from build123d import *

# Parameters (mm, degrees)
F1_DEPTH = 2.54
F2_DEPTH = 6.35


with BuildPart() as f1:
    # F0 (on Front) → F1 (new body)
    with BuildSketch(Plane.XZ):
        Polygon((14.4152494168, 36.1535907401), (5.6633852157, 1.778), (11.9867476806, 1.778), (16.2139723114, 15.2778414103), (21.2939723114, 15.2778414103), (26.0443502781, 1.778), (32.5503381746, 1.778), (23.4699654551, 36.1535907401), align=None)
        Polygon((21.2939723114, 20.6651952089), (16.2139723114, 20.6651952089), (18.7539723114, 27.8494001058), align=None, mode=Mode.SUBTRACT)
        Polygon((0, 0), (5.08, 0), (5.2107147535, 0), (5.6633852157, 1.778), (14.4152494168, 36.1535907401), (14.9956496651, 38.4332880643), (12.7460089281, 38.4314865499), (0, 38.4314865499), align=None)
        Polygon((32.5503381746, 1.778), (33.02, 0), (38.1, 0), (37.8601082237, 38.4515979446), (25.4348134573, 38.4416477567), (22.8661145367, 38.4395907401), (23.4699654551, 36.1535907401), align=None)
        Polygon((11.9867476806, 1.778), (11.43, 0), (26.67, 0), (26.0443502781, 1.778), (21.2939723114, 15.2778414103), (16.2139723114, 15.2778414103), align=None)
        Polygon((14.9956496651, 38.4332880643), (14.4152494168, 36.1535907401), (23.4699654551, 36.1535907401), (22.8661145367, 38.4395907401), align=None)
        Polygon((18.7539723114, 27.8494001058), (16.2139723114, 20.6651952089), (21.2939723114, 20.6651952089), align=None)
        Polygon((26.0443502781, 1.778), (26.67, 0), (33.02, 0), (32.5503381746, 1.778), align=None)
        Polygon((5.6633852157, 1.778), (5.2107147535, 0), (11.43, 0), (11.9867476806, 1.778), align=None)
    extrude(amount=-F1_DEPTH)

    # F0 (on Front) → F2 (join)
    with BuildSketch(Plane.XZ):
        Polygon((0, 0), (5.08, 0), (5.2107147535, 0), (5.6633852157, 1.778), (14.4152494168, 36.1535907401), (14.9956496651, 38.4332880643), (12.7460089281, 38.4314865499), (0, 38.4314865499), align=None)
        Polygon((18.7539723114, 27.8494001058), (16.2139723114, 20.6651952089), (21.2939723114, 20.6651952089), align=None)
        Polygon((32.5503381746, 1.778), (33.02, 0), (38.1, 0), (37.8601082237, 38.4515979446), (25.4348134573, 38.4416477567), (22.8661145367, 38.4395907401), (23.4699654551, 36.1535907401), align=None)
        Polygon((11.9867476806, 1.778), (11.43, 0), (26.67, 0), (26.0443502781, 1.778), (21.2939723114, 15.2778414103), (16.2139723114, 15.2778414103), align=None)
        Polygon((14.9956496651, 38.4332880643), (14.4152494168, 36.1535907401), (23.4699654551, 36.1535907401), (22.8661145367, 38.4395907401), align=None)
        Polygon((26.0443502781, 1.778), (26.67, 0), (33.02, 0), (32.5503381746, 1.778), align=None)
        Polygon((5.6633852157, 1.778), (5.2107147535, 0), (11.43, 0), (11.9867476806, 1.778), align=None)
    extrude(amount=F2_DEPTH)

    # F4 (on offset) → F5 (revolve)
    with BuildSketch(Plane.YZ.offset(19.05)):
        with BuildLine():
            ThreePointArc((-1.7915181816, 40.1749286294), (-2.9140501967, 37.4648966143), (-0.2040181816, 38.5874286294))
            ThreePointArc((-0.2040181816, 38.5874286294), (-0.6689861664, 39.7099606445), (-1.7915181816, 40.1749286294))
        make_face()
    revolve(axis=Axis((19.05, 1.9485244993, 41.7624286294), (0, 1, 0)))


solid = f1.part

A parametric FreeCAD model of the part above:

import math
import FreeCAD as App
import Part
import Sketcher

V = App.Vector
Q = App.Units.Quantity

doc = App.newDocument("Part")
body = doc.addObject("PartDesign::Body", "Body")

sketch1 = body.newObject("Sketcher::SketchObject", "Sketch")
sketch1.AttachmentSupport = (doc.getObject("XZ_Plane"), [""])
sketch1.MapMode = "FlatFace"
sketch1.addGeometry(Part.LineSegment(V(15, 38.4, 0), V(12.7, 38.4, 0)), False)
sketch1.addGeometry(Part.LineSegment(V(12.7, 38.4, 0), V(0, 38.4, 0)), False)
sketch1.addGeometry(Part.LineSegment(V(0, 38.4, 0), V(0, 0, 0)), False)
sketch1.addGeometry(Part.LineSegment(V(0, 0, 0), V(38.1, 0, 0)), False)
sketch1.addGeometry(Part.LineSegment(V(38.1, 0, 0), V(37.9, 38.5, 0)), False)
sketch1.addGeometry(Part.LineSegment(V(37.9, 38.5, 0), V(25.4, 38.4, 0)), False)
sketch1.addGeometry(Part.LineSegment(V(25.4, 38.4, 0), V(22.9, 38.4, 0)), False)
sketch1.addGeometry(Part.LineSegment(V(22.9, 38.4, 0), V(15, 38.4, 0)), False)
sketch1.addConstraint(Sketcher.Constraint("Coincident", 0, 2, 1, 1))
sketch1.addConstraint(Sketcher.Constraint("Coincident", 1, 2, 2, 1))
sketch1.addConstraint(Sketcher.Constraint("Coincident", 2, 2, 3, 1))
sketch1.addConstraint(Sketcher.Constraint("Coincident", 3, 2, 4, 1))
sketch1.addConstraint(Sketcher.Constraint("Coincident", 4, 2, 5, 1))
sketch1.addConstraint(Sketcher.Constraint("Coincident", 5, 2, 6, 1))
sketch1.addConstraint(Sketcher.Constraint("Coincident", 6, 2, 7, 1))
sketch1.addConstraint(Sketcher.Constraint("Coincident", 7, 2, 0, 1))
sketch1.addConstraint(Sketcher.Constraint("Horizontal", 1))
sketch1.addConstraint(Sketcher.Constraint("Vertical", 2))
sketch1.addConstraint(Sketcher.Constraint("Horizontal", 3))
sketch1.addConstraint(Sketcher.Constraint("Coincident", 2, 2, -1, 1))
sketch1.addConstraint(Sketcher.Constraint("Parallel", 0, 5))
sketch1.addConstraint(Sketcher.Constraint("Parallel", 5, 6))
sketch1.addConstraint(Sketcher.Constraint("Parallel", 6, 7))
sketch1.addConstraint(Sketcher.Constraint("DistanceX", 3, 1, 3, 2, Q("1.5 in")))
sketch1.addConstraint(Sketcher.Constraint("DistanceY", 0, 2, 5, 2, Q("0.0004 in")))
sketch1.addConstraint(Sketcher.Constraint("Distance", 5, Q("12.425299 mm")))
sketch1.addConstraint(Sketcher.Constraint("Distance", 6, Q("2.5687 mm")))
sketch1.addConstraint(Sketcher.Constraint("DistanceX", 1, 2, 1, 1, Q("12.746009 mm")))
sketch1.addConstraint(Sketcher.Constraint("DistanceX", 0, 2, 4, 2, Q("25.114099 mm")))
sketch1.addConstraint(Sketcher.Constraint("Distance", 0, Q("2.249641 mm")))
sketch1.addConstraint(Sketcher.Constraint("DistanceY", 2, 2, 2, 1, Q("38.431487 mm")))
pad1 = body.newObject("PartDesign::Pad", "Pad")
pad1.Profile = sketch1
pad1.Length = Q("0.1 in")
pad1.Reversed = True

sketch2 = body.newObject("Sketcher::SketchObject", "Sketch001")
sketch2.AttachmentSupport = (doc.getObject("XZ_Plane"), [""])
sketch2.MapMode = "FlatFace"
sketch2.addGeometry(Part.LineSegment(V(0, 0, 0), V(38.1, 0, 0)), False)
sketch2.addGeometry(Part.LineSegment(V(38.1, 0, 0), V(37.9, 38.5, 0)), False)
sketch2.addGeometry(Part.LineSegment(V(37.9, 38.5, 0), V(25.4, 38.4, 0)), False)
sketch2.addGeometry(Part.LineSegment(V(25.4, 38.4, 0), V(22.9, 38.4, 0)), False)
sketch2.addGeometry(Part.LineSegment(V(22.9, 38.4, 0), V(15, 38.4, 0)), False)
sketch2.addGeometry(Part.LineSegment(V(15, 38.4, 0), V(12.7, 38.4, 0)), False)
sketch2.addGeometry(Part.LineSegment(V(12.7, 38.4, 0), V(0, 38.4, 0)), False)
sketch2.addGeometry(Part.LineSegment(V(0, 38.4, 0), V(0, 0, 0)), False)
sketch2.addGeometry(Part.LineSegment(V(5.7, 1.8, 0), V(14.4, 36.2, 0)), False)
sketch2.addGeometry(Part.LineSegment(V(14.4, 36.2, 0), V(23.5, 36.2, 0)), False)
sketch2.addGeometry(Part.LineSegment(V(23.5, 36.2, 0), V(32.6, 1.8, 0)), False)
sketch2.addGeometry(Part.LineSegment(V(32.6, 1.8, 0), V(26, 1.8, 0)), False)
sketch2.addGeometry(Part.LineSegment(V(26, 1.8, 0), V(21.3, 15.3, 0)), False)
sketch2.addGeometry(Part.LineSegment(V(21.3, 15.3, 0), V(16.2, 15.3, 0)), False)
sketch2.addGeometry(Part.LineSegment(V(16.2, 15.3, 0), V(12, 1.8, 0)), False)
sketch2.addGeometry(Part.LineSegment(V(12, 1.8, 0), V(5.7, 1.8, 0)), False)
sketch2.addGeometry(Part.LineSegment(V(18.8, 27.8, 0), V(16.2, 20.7, 0)), False)
sketch2.addGeometry(Part.LineSegment(V(16.2, 20.7, 0), V(21.3, 20.7, 0)), False)
sketch2.addGeometry(Part.LineSegment(V(21.3, 20.7, 0), V(18.8, 27.8, 0)), False)
sketch2.addConstraint(Sketcher.Constraint("Coincident", 0, 2, 1, 1))
sketch2.addConstraint(Sketcher.Constraint("Coincident", 1, 2, 2, 1))
sketch2.addConstraint(Sketcher.Constraint("Coincident", 2, 2, 3, 1))
sketch2.addConstraint(Sketcher.Constraint("Coincident", 3, 2, 4, 1))
sketch2.addConstraint(Sketcher.Constraint("Coincident", 4, 2, 5, 1))
sketch2.addConstraint(Sketcher.Constraint("Coincident", 5, 2, 6, 1))
sketch2.addConstraint(Sketcher.Constraint("Coincident", 6, 2, 7, 1))
sketch2.addConstraint(Sketcher.Constraint("Coincident", 7, 2, 0, 1))
sketch2.addConstraint(Sketcher.Constraint("Coincident", 8, 2, 9, 1))
sketch2.addConstraint(Sketcher.Constraint("Coincident", 9, 2, 10, 1))
sketch2.addConstraint(Sketcher.Constraint("Coincident", 10, 2, 11, 1))
sketch2.addConstraint(Sketcher.Constraint("Coincident", 11, 2, 12, 1))
sketch2.addConstraint(Sketcher.Constraint("Coincident", 12, 2, 13, 1))
sketch2.addConstraint(Sketcher.Constraint("Coincident", 13, 2, 14, 1))
sketch2.addConstraint(Sketcher.Constraint("Coincident", 14, 2, 15, 1))
sketch2.addConstraint(Sketcher.Constraint("Coincident", 15, 2, 8, 1))
sketch2.addConstraint(Sketcher.Constraint("Coincident", 16, 2, 17, 1))
sketch2.addConstraint(Sketcher.Constraint("Coincident", 17, 2, 18, 1))
sketch2.addConstraint(Sketcher.Constraint("Coincident", 18, 2, 16, 1))
sketch2.addConstraint(Sketcher.Constraint("Horizontal", 0))
sketch2.addConstraint(Sketcher.Constraint("Horizontal", 6))
sketch2.addConstraint(Sketcher.Constraint("Vertical", 7))
sketch2.addConstraint(Sketcher.Constraint("Horizontal", 9))
sketch2.addConstraint(Sketcher.Constraint("Horizontal", 11))
sketch2.addConstraint(Sketcher.Constraint("Horizontal", 13))
sketch2.addConstraint(Sketcher.Constraint("Horizontal", 15))
sketch2.addConstraint(Sketcher.Constraint("Horizontal", 17))
sketch2.addConstraint(Sketcher.Constraint("Coincident", 7, 2, -1, 1))
sketch2.addConstraint(Sketcher.Constraint("Parallel", 2, 3))
sketch2.addConstraint(Sketcher.Constraint("Parallel", 3, 4))
sketch2.addConstraint(Sketcher.Constraint("Parallel", 4, 5))
sketch2.addConstraint(Sketcher.Constraint("Horizontal", 11, 2, 14, 2))
sketch2.addConstraint(Sketcher.Constraint("Vertical", 13, 2, 16, 2))
sketch2.addConstraint(Sketcher.Constraint("Vertical", 12, 2, 17, 2))
sketch2.addConstraint(Sketcher.Constraint("Equal", 16, 18))
sketch2.addConstraint(Sketcher.Constraint("DistanceX", 0, 1, 0, 2, Q("1.5 in")))
sketch2.addConstraint(Sketcher.Constraint("DistanceX", 13, 2, 13, 1, Q("0.2 in")))
sketch2.addConstraint(Sketcher.Constraint("Distance", 16, Q("0.3 in")))
sketch2.addConstraint(Sketcher.Constraint("DistanceY", -1, 1, 10, 2, Q("0.07 in")))
sketch2.addConstraint(Sketcher.Constraint("DistanceY", 8, 2, 3, 2, Q("0.09 in")))
sketch2.addConstraint(Sketcher.Constraint("DistanceY", 5, 2, 2, 2, Q("0.0004 in")))
sketch2.addConstraint(Sketcher.Constraint("DistanceX", 15, 2, 11, 2, Q("0.8024002 in")))
sketch2.addConstraint(Sketcher.Constraint("Distance", 2, Q("12.425299 mm")))
sketch2.addConstraint(Sketcher.Constraint("Distance", 3, Q("2.5687 mm")))
sketch2.addConstraint(Sketcher.Constraint("DistanceX", 6, 2, 6, 1, Q("12.746009 mm")))
sketch2.addConstraint(Sketcher.Constraint("DistanceY", -1, 1, 18, 2, Q("27.8494 mm")))
sketch2.addConstraint(Sketcher.Constraint("DistanceX", 5, 2, 1, 2, Q("25.114099 mm")))
sketch2.addConstraint(Sketcher.Constraint("DistanceX", 8, 2, 4, 2, Q("0.5804 mm")))
sketch2.addConstraint(Sketcher.Constraint("DistanceX", 8, 2, 11, 2, Q("11.629101 mm")))
sketch2.addConstraint(Sketcher.Constraint("Distance", 5, Q("2.249641 mm")))
sketch2.addConstraint(Sketcher.Constraint("Distance", 8, Q("35.472191 mm")))
sketch2.addConstraint(Sketcher.Constraint("DistanceX", 9, 1, 9, 2, Q("9.054716 mm")))
sketch2.addConstraint(Sketcher.Constraint("DistanceX", 11, 2, 11, 1, Q("6.505988 mm")))
sketch2.addConstraint(Sketcher.Constraint("DistanceX", 15, 2, 15, 1, Q("6.323362 mm")))
sketch2.addConstraint(Sketcher.Constraint("DistanceY", -1, 1, 12, 2, Q("15.277841 mm")))
sketch2.addConstraint(Sketcher.Constraint("Distance", 12, Q("14.311248 mm")))
pad2 = body.newObject("PartDesign::Pad", "Pad001")
pad2.Profile = sketch2
pad2.Length = Q("0.25 in")

sketch3 = body.newObject("Sketcher::SketchObject", "Sketch002")
sketch3.AttachmentSupport = (doc.getObject("YZ_Plane"), [""])
sketch3.MapMode = "FlatFace"
sketch3.AttachmentOffset = App.Placement(V(0, 0, 0.75 * 25.4), App.Rotation())
sketch3.addGeometry(Part.ArcOfCircle(Part.Circle(V(-1.8, 38.6, 0), V(0, 0, 1), 1.6), math.radians(90), math.radians(360)), False)
sketch3.addGeometry(Part.ArcOfCircle(Part.Circle(V(-1.8, 38.6, 0), V(0, 0, 1), 1.6), math.radians(0), math.radians(90)), False)
sketch3.addGeometry(Part.LineSegment(V(-1.8, 41.8, 0), V(-0.2, 41.8, 0)), True)
sketch3.addConstraint(Sketcher.Constraint("Tangent", 0, 1, 1, 2))
sketch3.addConstraint(Sketcher.Constraint("Coincident", 1, 1, 0, 2))
sketch3.addConstraint(Sketcher.Constraint("Horizontal", 2))
sketch3.addConstraint(Sketcher.Constraint("Horizontal", 0, 3, 1, 1))
sketch3.addConstraint(Sketcher.Constraint("Vertical", 1, 3, 0, 1))
sketch3.addConstraint(Sketcher.Constraint("Vertical", 0, 1, 2, 1))
sketch3.addConstraint(Sketcher.Constraint("Vertical", 1, 1, 2, 2))
sketch3.addConstraint(Sketcher.Constraint("Radius", 0, Q("0.0625 in")))
sketch3.addConstraint(Sketcher.Constraint("DistanceY", 0, 1, 2, 1, Q("0.0625 in")))
sketch3.addConstraint(Sketcher.Constraint("DistanceX", 0, 3, -1, 1, Q("1.791518 mm")))
sketch3.addConstraint(Sketcher.Constraint("DistanceY", -1, 1, 0, 3, Q("38.587429 mm")))
revolution = body.newObject("PartDesign::Revolution", "Revolution")
revolution.Profile = sketch3
revolution.ReferenceAxis = (sketch3, ["Axis0"])
revolution.Angle = 360

doc.recompute()
